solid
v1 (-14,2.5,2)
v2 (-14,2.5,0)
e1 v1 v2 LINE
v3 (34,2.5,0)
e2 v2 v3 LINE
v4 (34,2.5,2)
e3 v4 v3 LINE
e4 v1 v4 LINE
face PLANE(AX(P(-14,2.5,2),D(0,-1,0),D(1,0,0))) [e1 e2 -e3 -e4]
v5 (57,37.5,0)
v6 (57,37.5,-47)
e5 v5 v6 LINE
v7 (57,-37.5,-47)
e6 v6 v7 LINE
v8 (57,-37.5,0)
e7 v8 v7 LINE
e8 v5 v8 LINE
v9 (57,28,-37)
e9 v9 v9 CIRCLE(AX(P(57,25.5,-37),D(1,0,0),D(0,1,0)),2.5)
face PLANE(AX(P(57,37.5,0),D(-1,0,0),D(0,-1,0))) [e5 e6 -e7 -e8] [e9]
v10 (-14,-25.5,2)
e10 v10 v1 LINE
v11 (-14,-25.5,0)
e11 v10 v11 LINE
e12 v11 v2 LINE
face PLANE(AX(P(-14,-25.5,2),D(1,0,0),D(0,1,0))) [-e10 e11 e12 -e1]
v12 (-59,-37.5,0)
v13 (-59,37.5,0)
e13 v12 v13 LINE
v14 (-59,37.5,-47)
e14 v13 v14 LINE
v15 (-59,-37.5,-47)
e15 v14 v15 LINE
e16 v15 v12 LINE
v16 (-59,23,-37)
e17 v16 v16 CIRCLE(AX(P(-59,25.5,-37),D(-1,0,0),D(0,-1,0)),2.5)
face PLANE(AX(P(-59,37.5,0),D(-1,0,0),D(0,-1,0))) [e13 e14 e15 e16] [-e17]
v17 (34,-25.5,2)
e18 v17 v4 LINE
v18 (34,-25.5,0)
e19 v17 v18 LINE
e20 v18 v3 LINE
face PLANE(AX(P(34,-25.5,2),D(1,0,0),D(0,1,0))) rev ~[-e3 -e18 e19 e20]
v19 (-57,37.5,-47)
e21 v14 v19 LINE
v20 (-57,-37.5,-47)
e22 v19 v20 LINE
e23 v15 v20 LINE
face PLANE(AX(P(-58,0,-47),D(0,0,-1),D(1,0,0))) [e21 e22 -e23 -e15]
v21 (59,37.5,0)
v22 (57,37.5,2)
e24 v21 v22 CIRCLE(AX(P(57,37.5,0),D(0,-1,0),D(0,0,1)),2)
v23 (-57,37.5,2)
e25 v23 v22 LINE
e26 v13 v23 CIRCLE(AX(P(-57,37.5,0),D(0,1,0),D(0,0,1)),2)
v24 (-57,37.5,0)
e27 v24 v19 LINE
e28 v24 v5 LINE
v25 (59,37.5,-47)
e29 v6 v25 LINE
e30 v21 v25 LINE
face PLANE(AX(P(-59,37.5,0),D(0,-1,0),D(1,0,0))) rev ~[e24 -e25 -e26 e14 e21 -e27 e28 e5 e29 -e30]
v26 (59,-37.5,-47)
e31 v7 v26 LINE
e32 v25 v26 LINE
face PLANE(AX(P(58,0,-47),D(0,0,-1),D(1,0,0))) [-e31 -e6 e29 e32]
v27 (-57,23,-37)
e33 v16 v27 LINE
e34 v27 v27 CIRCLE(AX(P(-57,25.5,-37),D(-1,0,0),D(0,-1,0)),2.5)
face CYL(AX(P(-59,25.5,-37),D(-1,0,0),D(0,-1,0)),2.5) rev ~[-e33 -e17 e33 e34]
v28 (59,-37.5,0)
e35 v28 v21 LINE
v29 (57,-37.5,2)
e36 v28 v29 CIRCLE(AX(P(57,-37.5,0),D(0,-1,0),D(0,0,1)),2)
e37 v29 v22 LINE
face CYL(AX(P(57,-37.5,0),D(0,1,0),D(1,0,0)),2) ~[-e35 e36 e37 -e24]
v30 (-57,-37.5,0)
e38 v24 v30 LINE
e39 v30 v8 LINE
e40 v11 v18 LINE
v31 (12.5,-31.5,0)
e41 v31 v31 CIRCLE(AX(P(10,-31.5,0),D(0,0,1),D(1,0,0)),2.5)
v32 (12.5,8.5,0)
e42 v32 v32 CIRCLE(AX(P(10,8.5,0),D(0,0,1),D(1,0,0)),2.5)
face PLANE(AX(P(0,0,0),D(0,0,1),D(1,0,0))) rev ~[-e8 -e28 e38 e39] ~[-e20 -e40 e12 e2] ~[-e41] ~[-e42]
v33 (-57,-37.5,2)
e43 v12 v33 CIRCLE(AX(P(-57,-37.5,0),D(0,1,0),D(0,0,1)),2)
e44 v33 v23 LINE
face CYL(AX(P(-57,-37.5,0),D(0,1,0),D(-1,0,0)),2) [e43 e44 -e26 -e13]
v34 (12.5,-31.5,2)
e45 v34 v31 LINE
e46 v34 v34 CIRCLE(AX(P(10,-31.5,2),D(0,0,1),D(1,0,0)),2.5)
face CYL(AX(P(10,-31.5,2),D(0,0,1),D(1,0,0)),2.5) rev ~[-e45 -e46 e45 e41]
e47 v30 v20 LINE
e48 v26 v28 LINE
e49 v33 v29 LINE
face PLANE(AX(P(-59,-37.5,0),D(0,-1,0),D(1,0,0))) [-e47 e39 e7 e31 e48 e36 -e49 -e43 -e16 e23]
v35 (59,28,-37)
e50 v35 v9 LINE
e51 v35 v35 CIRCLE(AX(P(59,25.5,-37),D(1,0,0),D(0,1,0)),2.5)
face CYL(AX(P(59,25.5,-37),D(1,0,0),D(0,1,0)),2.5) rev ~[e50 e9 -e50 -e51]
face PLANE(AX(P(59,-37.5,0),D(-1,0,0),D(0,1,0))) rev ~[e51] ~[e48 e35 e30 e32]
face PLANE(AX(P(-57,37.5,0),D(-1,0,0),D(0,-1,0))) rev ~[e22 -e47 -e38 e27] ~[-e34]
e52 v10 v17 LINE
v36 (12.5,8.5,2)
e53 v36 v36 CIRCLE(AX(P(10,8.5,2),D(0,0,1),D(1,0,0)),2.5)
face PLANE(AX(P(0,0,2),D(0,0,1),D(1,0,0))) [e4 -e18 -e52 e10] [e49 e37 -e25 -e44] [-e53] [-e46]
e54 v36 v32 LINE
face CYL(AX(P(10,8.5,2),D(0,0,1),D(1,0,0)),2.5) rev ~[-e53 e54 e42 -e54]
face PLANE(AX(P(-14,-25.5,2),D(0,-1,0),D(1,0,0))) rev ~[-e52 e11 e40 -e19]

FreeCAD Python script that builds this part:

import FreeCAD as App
import Part
import Sketcher
from FreeCAD import Vector
Q = App.Units.Quantity


def edges_at(feature, points):
    """Names of the edges that pass closest to the given points."""
    edges = feature.Shape.Edges
    near = lambda p: min(range(len(edges)), key=lambda i: edges[i].distToShape(Part.Vertex(*p))[0])
    return sorted({f"Edge{near(p) + 1}" for p in points})


def add_polygon(sketch, points):
    """Adds a closed chain of lines whose ends are joined by coincident constraints."""
    first, n = sketch.GeometryCount, len(points)
    for a, b in zip(points, points[1:] + points[:1]):
        sketch.addGeometry(Part.LineSegment(App.Vector(*a, 0), App.Vector(*b, 0)), False)
    for i in range(n):
        sketch.addConstraint(Sketcher.Constraint("Coincident", first + i, 2, first + (i + 1) % n, 1))

doc = App.newDocument("Part")
body = doc.addObject("PartDesign::Body", "Body")

sketch1 = body.newObject("Sketcher::SketchObject", "Sketch")
sketch1.AttachmentSupport = (doc.getObject("XY_Plane"), [""])
sketch1.MapMode = "FlatFace"
add_polygon(sketch1, [(-59, 38), (-59, -38), (59, -38), (59, 38)])
sketch1.addConstraint(Sketcher.Constraint("Vertical", 0))
sketch1.addConstraint(Sketcher.Constraint("Horizontal", 1))
sketch1.addConstraint(Sketcher.Constraint("Vertical", 2))
sketch1.addConstraint(Sketcher.Constraint("Horizontal", 3))
sketch1.addConstraint(Sketcher.Constraint("Symmetric", 0, 2, 2, 2, -1, 1))
sketch1.addConstraint(Sketcher.Constraint("DistanceX", 1, 1, 1, 2, Q("118 mm")))
sketch1.addConstraint(Sketcher.Constraint("DistanceY", 0, 2, 0, 1, Q("75 mm")))
pad1 = body.newObject("PartDesign::Pad", "Pad")
pad1.Profile = sketch1
pad1.Length = 2

sketch2 = body.newObject("Sketcher::SketchObject", "Sketch001")
sketch2.AttachmentSupport = (doc.getObject("XY_Plane"), [""])
sketch2.MapMode = "FlatFace"
sketch2.AttachmentOffset = App.Placement(Vector(0, 0, 2), App.Rotation())
add_polygon(sketch2, [(-14, 2.5), (-14, -25.5), (34, -25.5), (34, 2.5)])
sketch2.addGeometry(Part.Circle(Vector(10, -31.5, 0), Vector(0, 0, 1), 2.5), False)
sketch2.addGeometry(Part.Circle(Vector(10, 8.5, 0), Vector(0, 0, 1), 2.5), False)
sketch2.addConstraint(Sketcher.Constraint("Vertical", 0))
sketch2.addConstraint(Sketcher.Constraint("Horizontal", 1))
sketch2.addConstraint(Sketcher.Constraint("Vertical", 2))
sketch2.addConstraint(Sketcher.Constraint("Horizontal", 3))
sketch2.addConstraint(Sketcher.Constraint("Equal", 4, 5))
sketch2.addConstraint(Sketcher.Constraint("Vertical", 4, 3, 5, 3))
sketch2.addConstraint(Sketcher.Constraint("Diameter", 4, Q("5 mm")))
sketch2.addConstraint(Sketcher.Constraint("DistanceX", 1, 1, 1, 2, Q("48 mm")))
sketch2.addConstraint(Sketcher.Constraint("DistanceY", 0, 2, 0, 1, Q("28 mm")))
sketch2.addConstraint(Sketcher.Constraint("DistanceX", -1, 1, 4, 3, Q("10 mm")))
sketch2.addConstraint(Sketcher.Constraint("DistanceX", 0, 2, -1, 1, Q("14 mm")))
sketch2.addConstraint(Sketcher.Constraint("DistanceY", 4, 3, 5, 3, Q("40 mm")))
sketch2.addConstraint(Sketcher.Constraint("DistanceY", 4, 3, 0, 2, Q("6 mm")))
sketch2.addConstraint(Sketcher.Constraint("DistanceY", 4, 3, -1, 1, Q("31.5 mm")))
pocket1 = body.newObject("PartDesign::Pocket", "Pocket")
pocket1.Profile = sketch2
pocket1.Length = 25

sketch3 = body.newObject("Sketcher::SketchObject", "Sketch002")
sketch3.AttachmentSupport = (doc.getObject("XY_Plane"), [""])
sketch3.MapMode = "FlatFace"
add_polygon(sketch3, [(-59, -37.5), (-59, 37.5), (-57, 37.5), (-57, -37.5)])
add_polygon(sketch3, [(57, -37.5), (57, 37.5), (59, 37.5), (59, -37.5)])
sketch3.addConstraint(Sketcher.Constraint("Vertical", 0))
sketch3.addConstraint(Sketcher.Constraint("Horizontal", 1))
sketch3.addConstraint(Sketcher.Constraint("Vertical", 2))
sketch3.addConstraint(Sketcher.Constraint("Horizontal", 3))
sketch3.addConstraint(Sketcher.Constraint("Vertical", 4))
sketch3.addConstraint(Sketcher.Constraint("Horizontal", 5))
sketch3.addConstraint(Sketcher.Constraint("Vertical", 6))
sketch3.addConstraint(Sketcher.Constraint("Horizontal", 7))
sketch3.addConstraint(Sketcher.Constraint("Symmetric", 2, 2, 4, 2, -1, 1))
sketch3.addConstraint(Sketcher.Constraint("Symmetric", 0, 2, 6, 2, -1, 1))
sketch3.addConstraint(Sketcher.Constraint("Horizontal", 1, 2, 4, 2))
sketch3.addConstraint(Sketcher.Constraint("DistanceX", 1, 1, 1, 2, Q("2 mm")))
sketch3.addConstraint(Sketcher.Constraint("DistanceY", 0, 1, 0, 2, Q("75 mm")))
sketch3.addConstraint(Sketcher.Constraint("DistanceX", 0, 2, -1, 1, Q("59 mm")))
pad2 = body.newObject("PartDesign::Pad", "Pad001")
pad2.Profile = sketch3
pad2.Length = 47
pad2.Reversed = True
doc.recompute()

fillet = body.newObject("PartDesign::Fillet", "Fillet")
fillet.Base = (pad2, edges_at(pad2, [(59, 0, 2), (-59, 0, 2)]))
fillet.Radius = 2

sketch4 = body.newObject("Sketcher::SketchObject", "Sketch003")
sketch4.AttachmentSupport = (doc.getObject("YZ_Plane"), [""])
sketch4.MapMode = "FlatFace"
sketch4.AttachmentOffset = App.Placement(Vector(0, 0, -59), App.Rotation())
sketch4.addGeometry(Part.Circle(Vector(25.5, -37, 0), Vector(0, 0, 1), 2.5), False)
sketch4.addConstraint(Sketcher.Constraint("Diameter", 0, Q("5 mm")))
sketch4.addConstraint(Sketcher.Constraint("DistanceY", 0, 3, -1, 1, Q("37 mm")))
sketch4.addConstraint(Sketcher.Constraint("DistanceX", -1, 1, 0, 3, Q("25.5 mm")))
pocket2 = body.newObject("PartDesign::Pocket", "Pocket001")
pocket2.Profile = sketch4
pocket2.Length = 25
pocket2.Reversed = True

sketch5 = body.newObject("Sketcher::SketchObject", "Sketch004")
sketch5.AttachmentSupport = (doc.getObject("YZ_Plane"), [""])
sketch5.MapMode = "FlatFace"
sketch5.AttachmentOffset = App.Placement(Vector(0, 0, 59), App.Rotation())
sketch5.addGeometry(Part.Circle(Vector(25.5, -37, 0), Vector(0, 0, 1), 2.5), False)
sketch5.addConstraint(Sketcher.Constraint("Diameter", 0, Q("5 mm")))
sketch5.addConstraint(Sketcher.Constraint("DistanceY", 0, 3, -1, 1, Q("37 mm")))
sketch5.addConstraint(Sketcher.Constraint("DistanceX", -1, 1, 0, 3, Q("25.5 mm")))
pocket3 = body.newObject("PartDesign::Pocket", "Pocket002")
pocket3.Profile = sketch5
pocket3.Length = 25

doc.recompute()
